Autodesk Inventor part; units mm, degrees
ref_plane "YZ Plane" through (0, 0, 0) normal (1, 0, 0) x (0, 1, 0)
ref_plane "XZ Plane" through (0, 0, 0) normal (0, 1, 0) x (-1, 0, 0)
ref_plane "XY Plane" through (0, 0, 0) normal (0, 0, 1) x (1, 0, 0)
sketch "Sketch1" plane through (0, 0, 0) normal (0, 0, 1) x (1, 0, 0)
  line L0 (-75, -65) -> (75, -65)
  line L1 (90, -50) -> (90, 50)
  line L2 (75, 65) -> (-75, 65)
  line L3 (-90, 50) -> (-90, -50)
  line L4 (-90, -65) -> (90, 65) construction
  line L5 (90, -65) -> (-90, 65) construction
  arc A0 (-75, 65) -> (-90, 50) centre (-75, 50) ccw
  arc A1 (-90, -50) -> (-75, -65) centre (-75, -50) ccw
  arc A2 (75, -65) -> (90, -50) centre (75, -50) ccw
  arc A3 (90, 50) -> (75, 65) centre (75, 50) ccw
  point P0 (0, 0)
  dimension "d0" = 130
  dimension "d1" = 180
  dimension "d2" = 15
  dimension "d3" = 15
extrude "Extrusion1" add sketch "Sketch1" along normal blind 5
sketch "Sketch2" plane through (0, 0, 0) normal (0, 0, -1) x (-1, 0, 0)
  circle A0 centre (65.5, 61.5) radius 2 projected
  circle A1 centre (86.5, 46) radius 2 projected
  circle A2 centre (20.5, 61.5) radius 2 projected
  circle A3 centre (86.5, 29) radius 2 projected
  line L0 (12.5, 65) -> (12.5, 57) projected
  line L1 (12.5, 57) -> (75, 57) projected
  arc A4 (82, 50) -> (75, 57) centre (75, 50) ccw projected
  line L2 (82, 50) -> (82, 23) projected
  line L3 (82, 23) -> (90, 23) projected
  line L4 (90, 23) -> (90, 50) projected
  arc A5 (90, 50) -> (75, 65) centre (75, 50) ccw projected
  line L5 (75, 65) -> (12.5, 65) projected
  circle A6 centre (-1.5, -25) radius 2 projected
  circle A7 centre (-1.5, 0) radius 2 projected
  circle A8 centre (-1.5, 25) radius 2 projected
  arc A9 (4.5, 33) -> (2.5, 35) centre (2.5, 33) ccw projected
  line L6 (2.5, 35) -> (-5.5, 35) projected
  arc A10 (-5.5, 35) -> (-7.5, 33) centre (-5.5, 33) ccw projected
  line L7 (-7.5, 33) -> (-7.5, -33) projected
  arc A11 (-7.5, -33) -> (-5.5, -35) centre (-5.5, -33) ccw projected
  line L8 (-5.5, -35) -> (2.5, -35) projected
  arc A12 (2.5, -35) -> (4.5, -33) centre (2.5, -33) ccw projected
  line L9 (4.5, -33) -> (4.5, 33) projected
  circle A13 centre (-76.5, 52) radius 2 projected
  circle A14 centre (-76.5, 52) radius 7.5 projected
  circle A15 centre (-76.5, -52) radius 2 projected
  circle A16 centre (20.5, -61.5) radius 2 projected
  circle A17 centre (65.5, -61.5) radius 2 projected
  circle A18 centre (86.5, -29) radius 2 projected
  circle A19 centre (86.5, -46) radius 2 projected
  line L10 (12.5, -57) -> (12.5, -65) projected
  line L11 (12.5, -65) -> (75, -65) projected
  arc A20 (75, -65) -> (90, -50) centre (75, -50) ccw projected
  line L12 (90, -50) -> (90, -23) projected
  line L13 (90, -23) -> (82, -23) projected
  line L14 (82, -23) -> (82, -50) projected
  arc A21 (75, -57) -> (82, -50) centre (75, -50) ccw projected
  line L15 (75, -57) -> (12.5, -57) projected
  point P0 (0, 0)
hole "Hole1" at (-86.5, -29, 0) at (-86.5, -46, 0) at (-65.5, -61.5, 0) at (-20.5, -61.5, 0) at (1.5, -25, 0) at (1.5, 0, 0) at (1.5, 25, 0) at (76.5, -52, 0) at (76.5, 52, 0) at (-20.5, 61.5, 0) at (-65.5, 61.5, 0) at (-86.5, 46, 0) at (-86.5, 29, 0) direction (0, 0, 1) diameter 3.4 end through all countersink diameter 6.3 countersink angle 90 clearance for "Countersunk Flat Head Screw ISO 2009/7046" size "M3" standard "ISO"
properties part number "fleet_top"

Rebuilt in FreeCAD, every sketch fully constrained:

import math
import FreeCAD as App
import Part
import Sketcher

doc = App.newDocument("Part")
body = doc.addObject("PartDesign::Body", "Body")

sketch1 = body.newObject("Sketcher::SketchObject", "Sketch")
sketch1.AttachmentSupport = (doc.getObject("XY_Plane"), [""])
sketch1.MapMode = "FlatFace"
sketch1.addGeometry(Part.ArcOfCircle(Part.Circle(App.Vector(-75, -50, 0), App.Vector(0, 0, 1), 15), math.radians(180), math.radians(270)), False)
sketch1.addGeometry(Part.LineSegment(App.Vector(-75, -65, 0), App.Vector(75, -65, 0)), False)
sketch1.addGeometry(Part.ArcOfCircle(Part.Circle(App.Vector(75, -50, 0), App.Vector(0, 0, 1), 15), math.radians(-90), math.radians(0)), False)
sketch1.addGeometry(Part.LineSegment(App.Vector(90, -50, 0), App.Vector(90, 50, 0)), False)
sketch1.addGeometry(Part.ArcOfCircle(Part.Circle(App.Vector(75, 50, 0), App.Vector(0, 0, 1), 15), math.radians(0), math.radians(90)), False)
sketch1.addGeometry(Part.LineSegment(App.Vector(75, 65, 0), App.Vector(-75, 65, 0)), False)
sketch1.addGeometry(Part.ArcOfCircle(Part.Circle(App.Vector(-75, 50, 0), App.Vector(0, 0, 1), 15), math.radians(90), math.radians(180)), False)
sketch1.addGeometry(Part.LineSegment(App.Vector(-90, 50, 0), App.Vector(-90, -50, 0)), False)
sketch1.addConstraint(Sketcher.Constraint("Tangent", 0, 2, 1, 1))
sketch1.addConstraint(Sketcher.Constraint("Tangent", 1, 2, 2, 1))
sketch1.addConstraint(Sketcher.Constraint("Tangent", 2, 2, 3, 1))
sketch1.addConstraint(Sketcher.Constraint("Tangent", 3, 2, 4, 1))
sketch1.addConstraint(Sketcher.Constraint("Tangent", 4, 2, 5, 1))
sketch1.addConstraint(Sketcher.Constraint("Tangent", 5, 2, 6, 1))
sketch1.addConstraint(Sketcher.Constraint("Tangent", 6, 2, 7, 1))
sketch1.addConstraint(Sketcher.Constraint("Tangent", 7, 2, 0, 1))
sketch1.addConstraint(Sketcher.Constraint("Horizontal", 1))
sketch1.addConstraint(Sketcher.Constraint("Vertical", 3))
sketch1.addConstraint(Sketcher.Constraint("Horizontal", 5))
sketch1.addConstraint(Sketcher.Constraint("Vertical", 7))
sketch1.addConstraint(Sketcher.Constraint("Equal", 0, 2))
sketch1.addConstraint(Sketcher.Constraint("Equal", 2, 4))
sketch1.addConstraint(Sketcher.Constraint("Equal", 4, 6))
sketch1.addConstraint(Sketcher.Constraint("Symmetric", 0, 3, 4, 3, -1, 1))
sketch1.addConstraint(Sketcher.Constraint("Radius", 0, 15.0))
sketch1.addConstraint(Sketcher.Constraint("DistanceY", 1, 2, 4, 2, 130.0))
sketch1.addConstraint(Sketcher.Constraint("DistanceX", 1, 1, 1, 2, 150.0))
pad1 = body.newObject("PartDesign::Pad", "Pad")
pad1.Profile = sketch1
pad1.Length = 5

sketch2 = body.newObject("Sketcher::SketchObject", "Sketch001")
sketch2.AttachmentSupport = (doc.getObject("XY_Plane"), [""])
sketch2.MapMode = "FlatFace"
sketch2.addGeometry(Part.Circle(App.Vector(-86.5, -29, 0), App.Vector(0, 0, 1), 1.7), False)
sketch2.addGeometry(Part.Circle(App.Vector(-86.5, -46, 0), App.Vector(0, 0, 1), 1.7), False)
sketch2.addGeometry(Part.Circle(App.Vector(-65.5, -61.5, 0), App.Vector(0, 0, 1), 1.7), False)
sketch2.addGeometry(Part.Circle(App.Vector(-20.5, -61.5, 0), App.Vector(0, 0, 1), 1.7), False)
sketch2.addGeometry(Part.Circle(App.Vector(1.5, -25, 0), App.Vector(0, 0, 1), 1.7), False)
sketch2.addGeometry(Part.Circle(App.Vector(1.5, 0, 0), App.Vector(0, 0, 1), 1.7), False)
sketch2.addGeometry(Part.Circle(App.Vector(1.5, 25, 0), App.Vector(0, 0, 1), 1.7), False)
sketch2.addGeometry(Part.Circle(App.Vector(76.5, -52, 0), App.Vector(0, 0, 1), 1.7), False)
sketch2.addGeometry(Part.Circle(App.Vector(76.5, 52, 0), App.Vector(0, 0, 1), 1.7), False)
sketch2.addGeometry(Part.Circle(App.Vector(-20.5, 61.5, 0), App.Vector(0, 0, 1), 1.7), False)
sketch2.addGeometry(Part.Circle(App.Vector(-65.5, 61.5, 0), App.Vector(0, 0, 1), 1.7), False)
sketch2.addGeometry(Part.Circle(App.Vector(-86.5, 46, 0), App.Vector(0, 0, 1), 1.7), False)
sketch2.addGeometry(Part.Circle(App.Vector(-86.5, 29, 0), App.Vector(0, 0, 1), 1.7), False)
sketch2.addConstraint(Sketcher.Constraint("Equal", 0, 1))
sketch2.addConstraint(Sketcher.Constraint("Equal", 1, 2))
sketch2.addConstraint(Sketcher.Constraint("Equal", 2, 3))
sketch2.addConstraint(Sketcher.Constraint("Equal", 3, 4))
sketch2.addConstraint(Sketcher.Constraint("Equal", 4, 5))
sketch2.addConstraint(Sketcher.Constraint("Equal", 5, 6))
sketch2.addConstraint(Sketcher.Constraint("Equal", 6, 7))
sketch2.addConstraint(Sketcher.Constraint("Equal", 7, 8))
sketch2.addConstraint(Sketcher.Constraint("Equal", 8, 9))
sketch2.addConstraint(Sketcher.Constraint("Equal", 9, 10))
sketch2.addConstraint(Sketcher.Constraint("Equal", 10, 11))
sketch2.addConstraint(Sketcher.Constraint("Equal", 11, 12))
sketch2.addConstraint(Sketcher.Constraint("Symmetric", 4, 3, 6, 3, -1))
sketch2.addConstraint(Sketcher.Constraint("Symmetric", 7, 3, 8, 3, -1))
sketch2.addConstraint(Sketcher.Constraint("Symmetric", 3, 3, 9, 3, -1))
sketch2.addConstraint(Sketcher.Constraint("Symmetric", 2, 3, 10, 3, -1))
sketch2.addConstraint(Sketcher.Constraint("Symmetric", 1, 3, 11, 3, -1))
sketch2.addConstraint(Sketcher.Constraint("Symmetric", 0, 3, 12, 3, -1))
sketch2.addConstraint(Sketcher.Constraint("PointOnObject", 5, 3, -1))
sketch2.addConstraint(Sketcher.Constraint("Horizontal", 2, 3, 3, 3))
sketch2.addConstraint(Sketcher.Constraint("Vertical", 0, 3, 1, 3))
sketch2.addConstraint(Sketcher.Constraint("Vertical", 4, 3, 5, 3))
sketch2.addConstraint(Sketcher.Constraint("Diameter", 0, 3.4))
sketch2.addConstraint(Sketcher.Constraint("DistanceY", 0, 3, -1, 1, 29.0))
sketch2.addConstraint(Sketcher.Constraint("DistanceY", 1, 3, -1, 1, 46.0))
sketch2.addConstraint(Sketcher.Constraint("DistanceY", 4, 3, -1, 1, 25.0))
sketch2.addConstraint(Sketcher.Constraint("DistanceY", 7, 3, -1, 1, 52.0))
sketch2.addConstraint(Sketcher.Constraint("DistanceX", 1, 3, 2, 3, 21.0))
sketch2.addConstraint(Sketcher.Constraint("DistanceX", 2, 3, 3, 3, 45.0))
sketch2.addConstraint(Sketcher.Constraint("DistanceX", 3, 3, 4, 3, 22.0))
sketch2.addConstraint(Sketcher.Constraint("DistanceX", 4, 3, 7, 3, 75.0))
sketch2.addConstraint(Sketcher.Constraint("DistanceX", 0, 3, -1, 1, 86.5))
sketch2.addConstraint(Sketcher.Constraint("DistanceY", 2, 3, -1, 1, 61.5))
doc.recompute()
hole = body.newObject("PartDesign::Hole", "Hole")
hole.Profile = sketch2
hole.ThreadType = "None"
hole.Diameter = 3.4
hole.DepthType = "ThroughAll"
hole.HoleCutType = "Countersink"
hole.HoleCutDiameter = 6.3
hole.HoleCutCountersinkAngle = 90
hole.Reversed = True

doc.recompute()
